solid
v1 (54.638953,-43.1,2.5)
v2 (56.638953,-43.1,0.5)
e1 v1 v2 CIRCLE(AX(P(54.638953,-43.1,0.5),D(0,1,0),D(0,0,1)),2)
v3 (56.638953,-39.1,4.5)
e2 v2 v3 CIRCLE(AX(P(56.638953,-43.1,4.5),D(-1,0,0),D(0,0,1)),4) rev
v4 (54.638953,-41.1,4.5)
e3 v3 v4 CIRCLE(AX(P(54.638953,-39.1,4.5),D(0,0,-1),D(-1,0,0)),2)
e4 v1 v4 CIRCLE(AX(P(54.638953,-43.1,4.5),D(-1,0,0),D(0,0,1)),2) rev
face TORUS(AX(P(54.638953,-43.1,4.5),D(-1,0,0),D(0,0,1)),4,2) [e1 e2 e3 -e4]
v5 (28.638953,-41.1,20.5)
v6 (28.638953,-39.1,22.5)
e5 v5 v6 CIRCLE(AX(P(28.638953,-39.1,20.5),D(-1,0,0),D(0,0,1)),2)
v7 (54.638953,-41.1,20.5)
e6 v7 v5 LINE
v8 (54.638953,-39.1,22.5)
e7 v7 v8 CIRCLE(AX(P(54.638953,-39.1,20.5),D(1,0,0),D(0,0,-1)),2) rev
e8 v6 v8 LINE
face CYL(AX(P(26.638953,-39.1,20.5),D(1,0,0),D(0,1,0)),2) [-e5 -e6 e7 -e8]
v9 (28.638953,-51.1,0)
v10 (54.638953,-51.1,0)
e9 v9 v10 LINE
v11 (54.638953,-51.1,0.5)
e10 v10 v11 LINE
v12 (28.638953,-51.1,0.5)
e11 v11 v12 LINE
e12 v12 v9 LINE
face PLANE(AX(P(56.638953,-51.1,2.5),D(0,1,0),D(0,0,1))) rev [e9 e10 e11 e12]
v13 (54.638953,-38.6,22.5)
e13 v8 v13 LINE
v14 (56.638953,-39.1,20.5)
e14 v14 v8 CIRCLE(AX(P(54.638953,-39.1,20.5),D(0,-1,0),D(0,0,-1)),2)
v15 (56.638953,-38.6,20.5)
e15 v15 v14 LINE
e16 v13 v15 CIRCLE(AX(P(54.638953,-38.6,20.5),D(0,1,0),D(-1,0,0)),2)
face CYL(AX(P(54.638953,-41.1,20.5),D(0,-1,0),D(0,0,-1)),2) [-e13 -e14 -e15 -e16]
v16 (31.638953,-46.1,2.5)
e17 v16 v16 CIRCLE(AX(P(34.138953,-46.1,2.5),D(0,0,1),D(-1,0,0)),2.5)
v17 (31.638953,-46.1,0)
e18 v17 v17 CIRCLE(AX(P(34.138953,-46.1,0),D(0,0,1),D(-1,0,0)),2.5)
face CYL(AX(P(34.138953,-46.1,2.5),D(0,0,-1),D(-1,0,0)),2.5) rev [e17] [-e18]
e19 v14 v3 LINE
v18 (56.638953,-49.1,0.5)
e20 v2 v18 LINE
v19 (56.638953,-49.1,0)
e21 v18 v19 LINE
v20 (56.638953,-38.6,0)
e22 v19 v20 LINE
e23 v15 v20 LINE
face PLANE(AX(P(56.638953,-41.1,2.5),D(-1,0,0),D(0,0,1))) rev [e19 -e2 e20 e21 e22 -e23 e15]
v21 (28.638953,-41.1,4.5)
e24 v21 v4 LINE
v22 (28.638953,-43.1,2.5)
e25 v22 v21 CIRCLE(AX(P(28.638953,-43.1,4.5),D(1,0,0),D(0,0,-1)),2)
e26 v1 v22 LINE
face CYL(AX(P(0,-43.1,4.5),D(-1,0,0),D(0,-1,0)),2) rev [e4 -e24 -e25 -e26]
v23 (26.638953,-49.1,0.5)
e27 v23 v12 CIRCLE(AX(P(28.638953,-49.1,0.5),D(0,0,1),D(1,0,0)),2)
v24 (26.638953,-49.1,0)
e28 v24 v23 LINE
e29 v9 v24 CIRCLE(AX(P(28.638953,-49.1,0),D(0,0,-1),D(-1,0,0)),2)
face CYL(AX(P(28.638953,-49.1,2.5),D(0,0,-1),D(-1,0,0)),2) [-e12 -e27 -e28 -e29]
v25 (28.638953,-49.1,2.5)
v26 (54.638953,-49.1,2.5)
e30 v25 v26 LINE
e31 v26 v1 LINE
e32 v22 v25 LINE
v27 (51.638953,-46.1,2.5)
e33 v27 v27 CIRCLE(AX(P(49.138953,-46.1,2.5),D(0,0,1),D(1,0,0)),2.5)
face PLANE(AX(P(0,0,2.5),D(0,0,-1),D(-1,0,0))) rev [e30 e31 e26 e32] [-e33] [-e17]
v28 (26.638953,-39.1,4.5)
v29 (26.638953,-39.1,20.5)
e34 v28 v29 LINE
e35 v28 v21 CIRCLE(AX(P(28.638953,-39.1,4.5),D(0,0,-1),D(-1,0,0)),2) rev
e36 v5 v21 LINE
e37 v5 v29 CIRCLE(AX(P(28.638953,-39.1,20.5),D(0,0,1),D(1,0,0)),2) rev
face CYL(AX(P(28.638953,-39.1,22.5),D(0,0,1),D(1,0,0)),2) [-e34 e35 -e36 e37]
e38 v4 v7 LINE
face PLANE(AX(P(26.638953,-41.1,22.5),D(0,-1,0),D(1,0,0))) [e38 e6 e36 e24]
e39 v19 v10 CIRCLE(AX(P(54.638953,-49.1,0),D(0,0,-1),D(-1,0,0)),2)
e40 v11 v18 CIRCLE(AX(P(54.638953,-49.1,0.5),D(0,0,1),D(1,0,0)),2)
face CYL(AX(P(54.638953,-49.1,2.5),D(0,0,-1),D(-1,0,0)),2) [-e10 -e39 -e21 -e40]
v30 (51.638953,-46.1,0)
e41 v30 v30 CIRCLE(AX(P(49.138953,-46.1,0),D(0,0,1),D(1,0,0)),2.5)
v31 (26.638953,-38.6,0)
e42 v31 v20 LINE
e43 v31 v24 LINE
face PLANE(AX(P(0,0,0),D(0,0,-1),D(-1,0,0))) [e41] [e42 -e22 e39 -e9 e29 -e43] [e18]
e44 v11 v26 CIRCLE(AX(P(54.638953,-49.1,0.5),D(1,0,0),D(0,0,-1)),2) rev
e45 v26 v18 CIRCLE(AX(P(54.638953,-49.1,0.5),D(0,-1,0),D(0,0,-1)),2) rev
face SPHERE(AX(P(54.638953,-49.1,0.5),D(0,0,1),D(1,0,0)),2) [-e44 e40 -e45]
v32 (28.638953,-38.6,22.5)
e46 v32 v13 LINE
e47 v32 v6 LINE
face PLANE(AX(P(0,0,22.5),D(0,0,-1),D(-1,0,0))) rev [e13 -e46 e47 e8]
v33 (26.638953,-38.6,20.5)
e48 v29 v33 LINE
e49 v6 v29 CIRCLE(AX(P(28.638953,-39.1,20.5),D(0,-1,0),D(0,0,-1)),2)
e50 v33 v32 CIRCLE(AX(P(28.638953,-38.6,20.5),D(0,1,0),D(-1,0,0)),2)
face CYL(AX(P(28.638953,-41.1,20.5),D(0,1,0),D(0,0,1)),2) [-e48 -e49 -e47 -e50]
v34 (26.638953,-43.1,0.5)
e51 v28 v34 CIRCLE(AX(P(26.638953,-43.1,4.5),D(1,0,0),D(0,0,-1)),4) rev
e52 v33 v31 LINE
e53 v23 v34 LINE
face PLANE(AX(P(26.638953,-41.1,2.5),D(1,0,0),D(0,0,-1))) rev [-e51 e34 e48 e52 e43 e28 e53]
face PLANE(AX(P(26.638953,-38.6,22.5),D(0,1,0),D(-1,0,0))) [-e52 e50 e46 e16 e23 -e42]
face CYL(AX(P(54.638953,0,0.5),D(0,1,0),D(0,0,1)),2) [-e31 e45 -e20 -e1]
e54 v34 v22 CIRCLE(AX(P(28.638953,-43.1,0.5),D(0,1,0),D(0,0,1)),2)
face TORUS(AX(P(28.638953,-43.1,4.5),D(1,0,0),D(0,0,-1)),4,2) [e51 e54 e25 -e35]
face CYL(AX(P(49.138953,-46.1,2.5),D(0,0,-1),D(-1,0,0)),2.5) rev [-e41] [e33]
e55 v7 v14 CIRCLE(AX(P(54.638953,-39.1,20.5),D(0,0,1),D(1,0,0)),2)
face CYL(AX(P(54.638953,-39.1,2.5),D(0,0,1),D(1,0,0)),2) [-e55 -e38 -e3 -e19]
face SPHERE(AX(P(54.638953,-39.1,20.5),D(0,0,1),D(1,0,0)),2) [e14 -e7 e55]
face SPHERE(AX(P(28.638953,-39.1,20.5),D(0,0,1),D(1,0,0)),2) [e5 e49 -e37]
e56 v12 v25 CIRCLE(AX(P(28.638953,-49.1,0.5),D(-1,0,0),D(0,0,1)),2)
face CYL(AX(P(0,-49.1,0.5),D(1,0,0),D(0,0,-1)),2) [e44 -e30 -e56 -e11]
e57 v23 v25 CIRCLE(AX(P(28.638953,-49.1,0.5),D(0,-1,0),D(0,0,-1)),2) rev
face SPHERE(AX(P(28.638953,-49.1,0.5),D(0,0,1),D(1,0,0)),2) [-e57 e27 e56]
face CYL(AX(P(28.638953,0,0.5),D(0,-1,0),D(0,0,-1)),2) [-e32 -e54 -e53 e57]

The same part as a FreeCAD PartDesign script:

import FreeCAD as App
import Part
import Sketcher


def edges_at(feature, points):
    """Names of the edges that pass closest to the given points."""
    edges = feature.Shape.Edges
    near = lambda p: min(range(len(edges)), key=lambda i: edges[i].distToShape(Part.Vertex(*p))[0])
    return sorted({f"Edge{near(p) + 1}" for p in points})


def add_polygon(sketch, points):
    """Adds a closed chain of lines whose ends are joined by coincident constraints."""
    first, n = sketch.GeometryCount, len(points)
    for a, b in zip(points, points[1:] + points[:1]):
        sketch.addGeometry(Part.LineSegment(App.Vector(*a, 0), App.Vector(*b, 0)), False)
    for i in range(n):
        sketch.addConstraint(Sketcher.Constraint("Coincident", first + i, 2, first + (i + 1) % n, 1))

doc = App.newDocument("Part")
body = doc.addObject("PartDesign::Body", "Body")

sketch1 = body.newObject("Sketcher::SketchObject", "Sketch")
sketch1.AttachmentSupport = (doc.getObject("XY_Plane"), [""])
sketch1.MapMode = "FlatFace"
add_polygon(sketch1, [(56.6, -51.1), (56.6, -41.1), (26.6, -41.1), (26.6, -51.1)])
sketch1.addGeometry(Part.Circle(App.Vector(49.1, -46.1, 0), App.Vector(0, 0, 1), 2.5), False)
sketch1.addGeometry(Part.Circle(App.Vector(34.1, -46.1, 0), App.Vector(0, 0, 1), 2.5), False)
sketch1.addConstraint(Sketcher.Constraint("Vertical", 0))
sketch1.addConstraint(Sketcher.Constraint("Horizontal", 1))
sketch1.addConstraint(Sketcher.Constraint("Vertical", 2))
sketch1.addConstraint(Sketcher.Constraint("Horizontal", 3))
sketch1.addConstraint(Sketcher.Constraint("Equal", 4, 5))
sketch1.addConstraint(Sketcher.Constraint("Horizontal", 4, 3, 5, 3))
sketch1.addConstraint(Sketcher.Constraint("Diameter", 4, 5.0))
sketch1.addConstraint(Sketcher.Constraint("DistanceX", 1, 2, 1, 1, 30.0))
sketch1.addConstraint(Sketcher.Constraint("DistanceY", 0, 1, 0, 2, 10.0))
sketch1.addConstraint(Sketcher.Constraint("DistanceX", 5, 3, 4, 3, 15.0))
sketch1.addConstraint(Sketcher.Constraint("DistanceY", 4, 3, 0, 2, 5.0))
sketch1.addConstraint(Sketcher.Constraint("DistanceY", 4, 3, -1, 1, 46.1))
sketch1.addConstraint(Sketcher.Constraint("DistanceX", 4, 3, 0, 2, 7.5))
sketch1.addConstraint(Sketcher.Constraint("DistanceX", -1, 1, 4, 3, 49.138953))
pad1 = body.newObject("PartDesign::Pad", "Pad")
pad1.Profile = sketch1
pad1.Length = 2.5

sketch2 = body.newObject("Sketcher::SketchObject", "Sketch001")
sketch2.AttachmentSupport = (doc.getObject("XY_Plane"), [""])
sketch2.MapMode = "FlatFace"
add_polygon(sketch2, [(56.6, -38.6), (56.6, -41.1), (26.6, -41.1), (26.6, -38.6)])
sketch2.addConstraint(Sketcher.Constraint("Vertical", 0))
sketch2.addConstraint(Sketcher.Constraint("Horizontal", 1))
sketch2.addConstraint(Sketcher.Constraint("Vertical", 2))
sketch2.addConstraint(Sketcher.Constraint("Horizontal", 3))
sketch2.addConstraint(Sketcher.Constraint("DistanceX", 1, 2, 1, 1, 30.0))
sketch2.addConstraint(Sketcher.Constraint("DistanceY", 0, 2, 0, 1, 2.5))
sketch2.addConstraint(Sketcher.Constraint("DistanceY", 0, 2, -1, 1, 41.1))
sketch2.addConstraint(Sketcher.Constraint("DistanceX", -1, 1, 0, 2, 56.638953))
pad2 = body.newObject("PartDesign::Pad", "Pad001")
pad2.Profile = sketch2
pad2.Length = 22.5
doc.recompute()

fillet = body.newObject("PartDesign::Fillet", "Fillet")
fillet.Base = (pad2, edges_at(pad2, [
    (26.639, -46.1, 2.5),
    (41.639, -51.1, 2.5),
    (41.639, -41.1, 22.5),
    (26.639, -41.1, 12.5),
    (26.639, -39.85, 22.5),
    (56.639, -39.85, 22.5),
    (56.639, -41.1, 12.5),
    (56.639, -46.1, 2.5),
    (56.639, -51.1, 1.25),
    (26.639, -51.1, 1.25),
    (41.639, -41.1, 2.5),
]))
fillet.Radius = 2

doc.recompute()
